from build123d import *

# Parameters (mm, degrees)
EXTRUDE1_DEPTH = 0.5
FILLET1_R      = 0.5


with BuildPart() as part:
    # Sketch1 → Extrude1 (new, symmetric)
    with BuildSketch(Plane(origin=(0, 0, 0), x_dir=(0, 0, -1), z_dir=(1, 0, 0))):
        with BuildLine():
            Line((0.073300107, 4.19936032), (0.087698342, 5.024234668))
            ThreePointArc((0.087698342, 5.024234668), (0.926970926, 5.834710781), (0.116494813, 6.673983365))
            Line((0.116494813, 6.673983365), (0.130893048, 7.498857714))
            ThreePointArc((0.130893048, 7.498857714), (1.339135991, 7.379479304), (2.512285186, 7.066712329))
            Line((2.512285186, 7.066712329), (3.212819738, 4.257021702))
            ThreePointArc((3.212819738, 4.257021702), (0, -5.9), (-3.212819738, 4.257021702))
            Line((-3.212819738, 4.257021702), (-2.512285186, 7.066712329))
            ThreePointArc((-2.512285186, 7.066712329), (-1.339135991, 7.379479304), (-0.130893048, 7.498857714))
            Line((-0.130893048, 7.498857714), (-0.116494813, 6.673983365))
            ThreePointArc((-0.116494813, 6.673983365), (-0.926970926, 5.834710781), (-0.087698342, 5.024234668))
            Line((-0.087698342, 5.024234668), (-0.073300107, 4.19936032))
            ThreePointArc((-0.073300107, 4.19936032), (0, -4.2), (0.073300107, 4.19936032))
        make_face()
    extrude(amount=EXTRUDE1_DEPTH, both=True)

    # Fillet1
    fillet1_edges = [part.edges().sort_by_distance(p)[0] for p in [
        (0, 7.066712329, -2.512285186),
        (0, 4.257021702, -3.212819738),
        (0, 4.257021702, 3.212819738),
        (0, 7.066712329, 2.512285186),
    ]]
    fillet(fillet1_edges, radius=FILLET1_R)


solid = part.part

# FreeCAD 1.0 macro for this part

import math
import FreeCAD as App
import Part
import Sketcher

V = App.Vector
Q = App.Units.Quantity


def edges_at(feature, points):
    """Names of the edges that pass closest to the given points."""
    edges = feature.Shape.Edges
    near = lambda p: min(range(len(edges)), key=lambda i: edges[i].distToShape(Part.Vertex(*p))[0])
    return sorted({f"Edge{near(p) + 1}" for p in points})

doc = App.newDocument("Part")
params = doc.addObject("Spreadsheet::Sheet", "Params")
for row, (alias, value) in enumerate([
    ("sketch1_radius", "4.2 mm"),
    ("sketch1_radius2", "7.5 mm"),
    ("pad1_length", "1 mm"),
    ("fillet_radius", "0.5 mm"),
], start=1):
    params.set(f"A{row}", alias)
    params.set(f"B{row}", "=" + value)
    params.setAlias(f"B{row}", alias)

body = doc.addObject("PartDesign::Body", "Body")

# Sketch on YZ plane
sketch1 = body.newObject("Sketcher::SketchObject", "Sketch")
sketch1.AttachmentSupport = (doc.getObject("YZ_Plane"), [""])
sketch1.MapMode = "FlatFace"
sketch1.addGeometry([
    Part.LineSegment(V(5.024235, -0.087698, 0), V(4.19936, -0.0733, 0)),  # 0
    Part.ArcOfCircle(Part.Circle(V(0, 0, 0), V(0, 0, 1), 4.2), math.radians(1), math.radians(359)),  # 1
    Part.LineSegment(V(4.19936, 0.0733, 0), V(5.024235, 0.087698, 0)),  # 2
    Part.ArcOfCircle(Part.Circle(V(5.849109, 0.102097, 0), V(0, 0, 1), 0.825), math.radians(1), math.radians(181)),  # 3
    Part.LineSegment(V(6.673983, 0.116495, 0), V(7.498858, 0.130893, 0)),  # 4
    Part.ArcOfCircle(Part.Circle(V(0, 0, 0), V(0, 0, 1), 7.5), math.radians(1), math.radians(19.570796)),  # 5
    Part.LineSegment(V(7.066712, 2.512285, 0), V(4.257022, 3.21282, 0)),  # 6
    Part.ArcOfCircle(Part.Circle(V(-0.313357, 0, 0), V(0, 0, 1), 5.586643), math.radians(35.105903), math.radians(324.894097)),  # 7
    Part.LineSegment(V(4.257022, -3.21282, 0), V(7.066712, -2.512285, 0)),  # 8
    Part.ArcOfCircle(Part.Circle(V(0, 0, 0), V(0, 0, 1), 7.5), math.radians(-19.570796), math.radians(-1)),  # 9
    Part.LineSegment(V(7.498858, -0.130893, 0), V(6.673983, -0.116495, 0)),  # 10
    Part.ArcOfCircle(Part.Circle(V(5.849109, -0.102097, 0), V(0, 0, 1), 0.825), math.radians(179), math.radians(359)),  # 11
], False)
sketch1.addConstraint([
    Sketcher.Constraint("Coincident", 0, 2, 1, 2),
    Sketcher.Constraint("Coincident", 1, 1, 2, 1),
    Sketcher.Constraint("Coincident", 2, 2, 3, 2),
    Sketcher.Constraint("Coincident", 3, 1, 4, 1),
    Sketcher.Constraint("Coincident", 4, 2, 5, 1),
    Sketcher.Constraint("Coincident", 5, 2, 6, 1),
    Sketcher.Constraint("Coincident", 6, 2, 7, 1),
    Sketcher.Constraint("Coincident", 7, 2, 8, 1),
    Sketcher.Constraint("Coincident", 8, 2, 9, 1),
    Sketcher.Constraint("Coincident", 9, 2, 10, 1),
    Sketcher.Constraint("Coincident", 10, 2, 11, 2),
    Sketcher.Constraint("Coincident", 11, 1, 0, 1),
    Sketcher.Constraint("Coincident", 1, 3, -1, 1),
    Sketcher.Constraint("Coincident", 5, 3, -1, 1),
    Sketcher.Constraint("Coincident", 9, 3, -1, 1),
    Sketcher.Constraint("Equal", 5, 9),
    Sketcher.Constraint("Equal", 3, 11),
    Sketcher.Constraint("Symmetric", 3, 3, 11, 3, -1),
    Sketcher.Constraint("Symmetric", 6, 2, 7, 2, -1),
    Sketcher.Constraint("Parallel", 2, 4),
    Sketcher.Constraint("Parallel", 0, 10),
    Sketcher.Constraint("Vertical", 0, 2, 1, 1),
    Sketcher.Constraint("Vertical", 5, 2, 8, 2),
    Sketcher.Constraint("Vertical", 4, 2, 9, 2),
    Sketcher.Constraint("Vertical", 3, 1, 10, 2),
    Sketcher.Constraint("Equal", 2, 4),
    Sketcher.Constraint("Radius", 1, Q("4.2 mm")),
    Sketcher.Constraint("Radius", 5, Q("7.5 mm")),
    Sketcher.Constraint("Angle", 0, Q("179 deg")),
    Sketcher.Constraint("Angle", 6, Q("166 deg")),
    Sketcher.Constraint("Radius", 3, Q("0.825 mm")),
    Sketcher.Constraint("Radius", 7, Q("5.586643 mm")),
    Sketcher.Constraint("DistanceY", 0, 2, 2, 2, Q("0.160998 mm")),
    Sketcher.Constraint("DistanceY", 2, 2, 3, 3, Q("0.014398 mm")),
    Sketcher.Constraint("DistanceY", 3, 3, 3, 1, Q("0.014398 mm")),
    Sketcher.Constraint("DistanceX", -1, 1, 6, 2, Q("4.257022 mm")),
    Sketcher.Constraint("DistanceY", -1, 1, 6, 2, Q("3.21282 mm")),
])
sketch1.setExpression("Constraints[26]", "Params.sketch1_radius")
sketch1.setExpression("Constraints[27]", "Params.sketch1_radius2")
pad1 = body.newObject("PartDesign::Pad", "Pad")
pad1.Profile = sketch1
pad1.setExpression("Length", "Params.pad1_length")
pad1.Midplane = True
doc.recompute()

fillet = body.newObject("PartDesign::Fillet", "Fillet")
fillet.Base = (pad1, edges_at(pad1, [
    (0, 7.067, -2.512),
    (0, 4.257, -3.213),
    (0, 4.257, 3.213),
    (0, 7.067, 2.512),
]))
fillet.setExpression("Radius", "Params.fillet_radius")

doc.recompute()
